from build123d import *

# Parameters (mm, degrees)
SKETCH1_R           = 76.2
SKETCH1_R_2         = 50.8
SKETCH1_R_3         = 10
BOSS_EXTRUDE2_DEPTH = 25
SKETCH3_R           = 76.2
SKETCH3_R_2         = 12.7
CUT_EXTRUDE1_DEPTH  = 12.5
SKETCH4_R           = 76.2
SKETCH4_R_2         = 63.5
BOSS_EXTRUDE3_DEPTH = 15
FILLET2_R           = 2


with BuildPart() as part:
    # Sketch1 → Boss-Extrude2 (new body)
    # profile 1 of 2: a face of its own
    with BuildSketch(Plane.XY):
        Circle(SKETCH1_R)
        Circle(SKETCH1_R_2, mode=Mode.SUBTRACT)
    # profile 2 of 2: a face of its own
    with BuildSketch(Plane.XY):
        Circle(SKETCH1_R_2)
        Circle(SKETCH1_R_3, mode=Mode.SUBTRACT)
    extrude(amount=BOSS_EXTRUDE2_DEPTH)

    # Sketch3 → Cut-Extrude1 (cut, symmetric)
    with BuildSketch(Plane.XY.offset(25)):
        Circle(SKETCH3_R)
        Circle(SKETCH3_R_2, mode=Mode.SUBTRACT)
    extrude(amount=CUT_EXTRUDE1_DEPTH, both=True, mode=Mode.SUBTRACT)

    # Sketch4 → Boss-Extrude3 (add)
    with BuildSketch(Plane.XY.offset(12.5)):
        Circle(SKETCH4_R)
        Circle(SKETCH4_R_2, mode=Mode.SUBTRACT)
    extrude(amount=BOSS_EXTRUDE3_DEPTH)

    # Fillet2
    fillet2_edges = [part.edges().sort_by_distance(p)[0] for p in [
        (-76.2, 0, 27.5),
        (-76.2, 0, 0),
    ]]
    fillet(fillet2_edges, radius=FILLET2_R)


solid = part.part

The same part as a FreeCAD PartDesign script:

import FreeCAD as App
import Part
import Sketcher
Q = App.Units.Quantity


def edges_at(feature, points):
    """Names of the edges that pass closest to the given points."""
    edges = feature.Shape.Edges
    near = lambda p: min(range(len(edges)), key=lambda i: edges[i].distToShape(Part.Vertex(*p))[0])
    return sorted({f"Edge{near(p) + 1}" for p in points})

doc = App.newDocument("Part")
body = doc.addObject("PartDesign::Body", "Body")

# Sketch on XY plane
sketch1 = doc.addObject("Sketcher::SketchObject", "Sketch")
body.addObject(sketch1)
sketch1.AttachmentSupport = (doc.XY_Plane, [""])
sketch1.MapMode = "FlatFace"
sketch1.addGeometry(Part.Circle(App.Vector(0, 0, 0), App.Vector(0, 0, 1), 76.2), False)
sketch1.addGeometry(Part.Circle(App.Vector(0, 0, 0), App.Vector(0, 0, 1), 10), False)
sketch1.addConstraint(Sketcher.Constraint("Coincident", 0, 3, -1, 1))
sketch1.addConstraint(Sketcher.Constraint("Coincident", 1, 3, -1, 1))
sketch1.addConstraint(Sketcher.Constraint("Diameter", 1, Q("20 mm")))
sketch1.addConstraint(Sketcher.Constraint("Diameter", 0, Q("152.4 mm")))
pad1 = doc.addObject("PartDesign::Pad", "Pad")
body.addObject(pad1)
pad1.Profile = sketch1
pad1.Length = 25

# Sketch on XY plane
sketch2 = doc.addObject("Sketcher::SketchObject", "Sketch001")
body.addObject(sketch2)
sketch2.AttachmentSupport = (doc.XY_Plane, [""])
sketch2.MapMode = "FlatFace"
sketch2.AttachmentOffset = App.Placement(App.Vector(0, 0, 25), App.Rotation())
sketch2.addGeometry(Part.Circle(App.Vector(0, 0, 0), App.Vector(0, 0, 1), 76.2), False)
sketch2.addGeometry(Part.Circle(App.Vector(0, 0, 0), App.Vector(0, 0, 1), 12.7), False)
sketch2.addConstraint(Sketcher.Constraint("Coincident", 0, 3, -1, 1))
sketch2.addConstraint(Sketcher.Constraint("Coincident", 1, 3, -1, 1))
sketch2.addConstraint(Sketcher.Constraint("Diameter", 0, Q("152.4 mm")))
sketch2.addConstraint(Sketcher.Constraint("Diameter", 1, Q("25.4 mm")))
pocket1 = doc.addObject("PartDesign::Pocket", "Pocket")
body.addObject(pocket1)
pocket1.Profile = sketch2
pocket1.Length = 25
pocket1.Midplane = True

# Sketch on XY plane
sketch3 = doc.addObject("Sketcher::SketchObject", "Sketch002")
body.addObject(sketch3)
sketch3.AttachmentSupport = (doc.XY_Plane, [""])
sketch3.MapMode = "FlatFace"
sketch3.AttachmentOffset = App.Placement(App.Vector(0, 0, 12.5), App.Rotation())
sketch3.addGeometry(Part.Circle(App.Vector(0, 0, 0), App.Vector(0, 0, 1), 76.2), False)
sketch3.addGeometry(Part.Circle(App.Vector(0, 0, 0), App.Vector(0, 0, 1), 63.5), False)
sketch3.addConstraint(Sketcher.Constraint("Coincident", 0, 3, -1, 1))
sketch3.addConstraint(Sketcher.Constraint("Coincident", 1, 3, -1, 1))
sketch3.addConstraint(Sketcher.Constraint("Diameter", 1, Q("127 mm")))
sketch3.addConstraint(Sketcher.Constraint("Diameter", 0, Q("152.4 mm")))
pad2 = doc.addObject("PartDesign::Pad", "Pad001")
body.addObject(pad2)
pad2.Profile = sketch3
pad2.Length = 15
doc.recompute()

fillet = doc.addObject("PartDesign::Fillet", "Fillet")
body.addObject(fillet)
fillet.Base = (pad2, edges_at(pad2, [(-76.2, 0, 27.5), (-76.2, 0, 0)]))
fillet.Radius = 2

doc.recompute()
